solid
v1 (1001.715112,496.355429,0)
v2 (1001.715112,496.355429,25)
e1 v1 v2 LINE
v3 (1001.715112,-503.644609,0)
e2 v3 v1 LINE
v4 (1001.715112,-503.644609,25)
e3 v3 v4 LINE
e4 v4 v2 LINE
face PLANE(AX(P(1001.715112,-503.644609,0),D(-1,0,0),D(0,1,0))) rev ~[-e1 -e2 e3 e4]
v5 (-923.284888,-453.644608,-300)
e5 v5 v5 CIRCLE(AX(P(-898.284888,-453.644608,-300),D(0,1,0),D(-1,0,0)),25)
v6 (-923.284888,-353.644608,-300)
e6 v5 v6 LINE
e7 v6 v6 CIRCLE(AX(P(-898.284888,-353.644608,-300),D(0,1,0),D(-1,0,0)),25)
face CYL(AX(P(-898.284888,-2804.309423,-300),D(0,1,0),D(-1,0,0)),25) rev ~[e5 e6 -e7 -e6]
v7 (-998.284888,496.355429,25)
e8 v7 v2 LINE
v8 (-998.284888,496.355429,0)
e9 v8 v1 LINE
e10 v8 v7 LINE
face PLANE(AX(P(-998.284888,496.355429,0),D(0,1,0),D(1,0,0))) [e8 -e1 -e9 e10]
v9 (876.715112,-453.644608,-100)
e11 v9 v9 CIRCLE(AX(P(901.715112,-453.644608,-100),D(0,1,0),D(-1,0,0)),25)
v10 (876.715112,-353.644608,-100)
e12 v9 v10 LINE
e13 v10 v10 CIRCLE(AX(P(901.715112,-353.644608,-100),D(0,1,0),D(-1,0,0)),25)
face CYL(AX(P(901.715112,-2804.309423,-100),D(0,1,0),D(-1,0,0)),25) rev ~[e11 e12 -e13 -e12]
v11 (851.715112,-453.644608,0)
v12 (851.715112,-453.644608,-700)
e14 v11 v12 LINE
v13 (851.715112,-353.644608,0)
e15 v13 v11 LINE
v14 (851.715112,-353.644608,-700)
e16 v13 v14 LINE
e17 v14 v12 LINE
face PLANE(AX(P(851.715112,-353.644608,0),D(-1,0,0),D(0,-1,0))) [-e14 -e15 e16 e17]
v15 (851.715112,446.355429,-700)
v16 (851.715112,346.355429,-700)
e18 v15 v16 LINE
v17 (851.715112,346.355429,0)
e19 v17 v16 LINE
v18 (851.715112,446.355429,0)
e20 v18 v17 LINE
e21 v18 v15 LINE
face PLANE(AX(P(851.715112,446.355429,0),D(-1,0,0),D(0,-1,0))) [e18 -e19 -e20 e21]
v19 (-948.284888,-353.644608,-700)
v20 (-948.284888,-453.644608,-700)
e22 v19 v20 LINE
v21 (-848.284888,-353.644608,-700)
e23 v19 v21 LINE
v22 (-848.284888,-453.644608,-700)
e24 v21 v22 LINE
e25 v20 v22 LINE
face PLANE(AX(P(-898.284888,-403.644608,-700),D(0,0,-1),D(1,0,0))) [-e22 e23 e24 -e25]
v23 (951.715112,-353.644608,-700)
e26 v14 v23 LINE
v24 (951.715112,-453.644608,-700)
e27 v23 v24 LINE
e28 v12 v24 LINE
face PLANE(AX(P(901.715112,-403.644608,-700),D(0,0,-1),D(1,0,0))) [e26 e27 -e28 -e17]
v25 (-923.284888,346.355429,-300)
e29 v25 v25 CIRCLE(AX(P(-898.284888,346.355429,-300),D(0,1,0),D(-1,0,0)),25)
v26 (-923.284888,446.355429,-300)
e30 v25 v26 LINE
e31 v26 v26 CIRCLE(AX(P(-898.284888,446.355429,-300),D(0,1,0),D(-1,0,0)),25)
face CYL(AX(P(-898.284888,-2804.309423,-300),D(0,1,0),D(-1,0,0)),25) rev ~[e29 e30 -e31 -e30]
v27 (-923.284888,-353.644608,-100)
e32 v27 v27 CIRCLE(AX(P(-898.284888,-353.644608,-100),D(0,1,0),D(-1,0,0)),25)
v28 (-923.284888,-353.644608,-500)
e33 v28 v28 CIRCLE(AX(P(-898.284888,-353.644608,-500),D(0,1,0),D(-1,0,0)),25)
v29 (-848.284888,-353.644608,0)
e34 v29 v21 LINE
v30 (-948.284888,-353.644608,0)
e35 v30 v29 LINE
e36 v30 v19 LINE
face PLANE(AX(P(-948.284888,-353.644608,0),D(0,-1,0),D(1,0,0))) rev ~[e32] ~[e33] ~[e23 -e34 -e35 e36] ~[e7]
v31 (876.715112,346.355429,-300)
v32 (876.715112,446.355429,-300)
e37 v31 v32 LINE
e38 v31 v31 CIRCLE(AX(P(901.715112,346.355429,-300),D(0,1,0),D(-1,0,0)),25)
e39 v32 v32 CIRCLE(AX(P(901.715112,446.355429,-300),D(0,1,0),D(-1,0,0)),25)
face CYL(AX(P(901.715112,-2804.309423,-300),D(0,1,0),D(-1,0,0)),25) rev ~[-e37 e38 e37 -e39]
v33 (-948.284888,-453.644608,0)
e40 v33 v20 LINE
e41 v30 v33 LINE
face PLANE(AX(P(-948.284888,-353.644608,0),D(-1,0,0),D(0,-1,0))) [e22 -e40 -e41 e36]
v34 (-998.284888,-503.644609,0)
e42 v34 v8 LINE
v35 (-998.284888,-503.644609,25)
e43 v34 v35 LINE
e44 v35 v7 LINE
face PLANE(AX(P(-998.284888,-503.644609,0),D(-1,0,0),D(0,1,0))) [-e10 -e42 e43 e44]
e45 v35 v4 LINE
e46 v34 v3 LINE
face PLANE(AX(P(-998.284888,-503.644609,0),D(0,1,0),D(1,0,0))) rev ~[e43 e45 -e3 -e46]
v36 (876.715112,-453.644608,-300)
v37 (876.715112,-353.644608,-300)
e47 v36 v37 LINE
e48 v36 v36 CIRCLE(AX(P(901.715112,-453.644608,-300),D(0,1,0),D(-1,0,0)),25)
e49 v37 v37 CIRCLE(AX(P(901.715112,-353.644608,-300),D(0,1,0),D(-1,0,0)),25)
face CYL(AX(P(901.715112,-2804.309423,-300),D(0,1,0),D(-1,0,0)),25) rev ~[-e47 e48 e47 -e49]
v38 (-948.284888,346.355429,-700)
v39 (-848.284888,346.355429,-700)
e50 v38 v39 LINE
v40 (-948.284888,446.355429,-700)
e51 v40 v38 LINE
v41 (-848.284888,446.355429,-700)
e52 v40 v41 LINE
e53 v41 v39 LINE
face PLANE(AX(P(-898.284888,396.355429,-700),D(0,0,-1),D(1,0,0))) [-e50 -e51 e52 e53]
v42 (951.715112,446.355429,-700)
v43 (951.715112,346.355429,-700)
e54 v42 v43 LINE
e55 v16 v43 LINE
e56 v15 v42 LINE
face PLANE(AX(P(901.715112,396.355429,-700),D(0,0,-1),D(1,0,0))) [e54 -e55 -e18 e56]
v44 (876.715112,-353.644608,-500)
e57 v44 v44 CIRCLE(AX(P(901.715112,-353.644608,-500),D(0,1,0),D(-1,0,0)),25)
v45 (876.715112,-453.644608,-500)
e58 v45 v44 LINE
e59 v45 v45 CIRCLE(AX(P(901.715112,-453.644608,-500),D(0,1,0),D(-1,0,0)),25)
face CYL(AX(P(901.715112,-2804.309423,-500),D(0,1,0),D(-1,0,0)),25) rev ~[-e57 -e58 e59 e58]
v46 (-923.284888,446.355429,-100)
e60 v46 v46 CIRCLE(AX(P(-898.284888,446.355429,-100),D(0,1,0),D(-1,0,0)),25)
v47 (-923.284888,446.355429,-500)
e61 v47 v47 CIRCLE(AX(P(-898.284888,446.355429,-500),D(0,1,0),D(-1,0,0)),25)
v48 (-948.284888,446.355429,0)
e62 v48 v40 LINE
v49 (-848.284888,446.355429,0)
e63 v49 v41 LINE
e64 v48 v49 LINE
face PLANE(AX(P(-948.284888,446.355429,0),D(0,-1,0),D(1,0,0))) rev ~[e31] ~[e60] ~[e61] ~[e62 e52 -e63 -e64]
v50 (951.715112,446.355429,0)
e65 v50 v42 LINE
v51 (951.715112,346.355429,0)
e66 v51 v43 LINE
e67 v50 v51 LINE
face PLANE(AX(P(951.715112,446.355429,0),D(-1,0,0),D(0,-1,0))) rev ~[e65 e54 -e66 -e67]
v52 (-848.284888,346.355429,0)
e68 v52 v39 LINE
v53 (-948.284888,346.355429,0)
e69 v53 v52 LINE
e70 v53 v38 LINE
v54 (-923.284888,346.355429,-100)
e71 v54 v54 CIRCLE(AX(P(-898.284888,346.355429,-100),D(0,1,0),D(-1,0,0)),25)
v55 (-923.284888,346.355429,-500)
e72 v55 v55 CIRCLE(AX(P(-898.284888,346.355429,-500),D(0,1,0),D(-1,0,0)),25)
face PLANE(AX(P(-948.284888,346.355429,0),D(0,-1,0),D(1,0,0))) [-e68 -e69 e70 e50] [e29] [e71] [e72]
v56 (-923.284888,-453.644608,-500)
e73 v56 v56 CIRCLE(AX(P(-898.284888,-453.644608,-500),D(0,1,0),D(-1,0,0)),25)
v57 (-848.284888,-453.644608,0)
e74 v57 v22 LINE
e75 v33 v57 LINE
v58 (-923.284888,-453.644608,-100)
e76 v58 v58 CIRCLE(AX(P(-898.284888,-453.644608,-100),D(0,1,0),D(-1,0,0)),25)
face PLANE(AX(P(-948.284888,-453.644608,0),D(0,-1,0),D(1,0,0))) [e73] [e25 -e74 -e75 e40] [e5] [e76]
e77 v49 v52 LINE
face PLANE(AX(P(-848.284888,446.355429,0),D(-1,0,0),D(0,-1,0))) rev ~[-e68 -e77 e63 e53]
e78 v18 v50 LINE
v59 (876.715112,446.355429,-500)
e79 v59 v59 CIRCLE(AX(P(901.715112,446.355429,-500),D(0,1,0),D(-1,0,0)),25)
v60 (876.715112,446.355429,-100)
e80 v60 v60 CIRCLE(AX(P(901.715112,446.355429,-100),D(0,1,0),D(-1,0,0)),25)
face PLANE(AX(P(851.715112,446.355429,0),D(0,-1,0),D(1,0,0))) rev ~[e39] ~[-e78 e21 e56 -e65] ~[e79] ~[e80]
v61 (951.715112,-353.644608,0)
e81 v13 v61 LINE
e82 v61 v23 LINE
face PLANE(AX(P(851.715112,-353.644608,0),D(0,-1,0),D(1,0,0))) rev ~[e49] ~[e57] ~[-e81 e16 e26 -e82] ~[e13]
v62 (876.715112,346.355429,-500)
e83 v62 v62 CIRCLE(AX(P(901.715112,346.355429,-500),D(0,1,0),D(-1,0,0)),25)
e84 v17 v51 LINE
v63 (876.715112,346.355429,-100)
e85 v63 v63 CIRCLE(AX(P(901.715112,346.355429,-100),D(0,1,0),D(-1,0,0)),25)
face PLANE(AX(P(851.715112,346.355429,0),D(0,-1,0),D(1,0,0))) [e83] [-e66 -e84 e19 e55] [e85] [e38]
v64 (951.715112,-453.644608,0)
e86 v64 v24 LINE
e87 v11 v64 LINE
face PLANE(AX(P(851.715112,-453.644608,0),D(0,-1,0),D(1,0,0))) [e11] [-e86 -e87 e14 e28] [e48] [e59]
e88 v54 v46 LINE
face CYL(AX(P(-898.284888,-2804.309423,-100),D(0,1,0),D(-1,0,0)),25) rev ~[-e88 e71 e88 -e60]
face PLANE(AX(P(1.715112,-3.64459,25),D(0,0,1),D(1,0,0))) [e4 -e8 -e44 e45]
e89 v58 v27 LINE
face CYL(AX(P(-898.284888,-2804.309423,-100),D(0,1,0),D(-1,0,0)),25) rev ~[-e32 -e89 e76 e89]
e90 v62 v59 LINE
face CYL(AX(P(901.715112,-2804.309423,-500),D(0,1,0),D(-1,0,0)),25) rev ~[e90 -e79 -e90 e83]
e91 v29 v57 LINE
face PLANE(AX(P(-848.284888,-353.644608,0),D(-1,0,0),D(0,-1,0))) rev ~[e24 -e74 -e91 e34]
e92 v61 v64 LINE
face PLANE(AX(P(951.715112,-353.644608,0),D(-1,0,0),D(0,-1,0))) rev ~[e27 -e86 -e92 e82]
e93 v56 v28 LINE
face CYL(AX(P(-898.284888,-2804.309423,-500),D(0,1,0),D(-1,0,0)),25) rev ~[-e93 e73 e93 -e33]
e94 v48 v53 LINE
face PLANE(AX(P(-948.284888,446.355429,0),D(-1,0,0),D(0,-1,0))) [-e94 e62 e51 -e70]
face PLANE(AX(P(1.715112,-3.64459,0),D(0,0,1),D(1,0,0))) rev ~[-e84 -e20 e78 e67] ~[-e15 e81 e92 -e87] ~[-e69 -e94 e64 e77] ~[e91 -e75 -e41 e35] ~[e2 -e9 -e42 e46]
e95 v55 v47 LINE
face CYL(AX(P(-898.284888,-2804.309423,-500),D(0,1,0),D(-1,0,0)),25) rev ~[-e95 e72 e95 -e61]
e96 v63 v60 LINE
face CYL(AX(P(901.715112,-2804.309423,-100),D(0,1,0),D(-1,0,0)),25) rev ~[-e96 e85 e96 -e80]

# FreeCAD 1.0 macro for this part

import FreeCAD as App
import Part
import Sketcher


def add_polygon(sketch, points):
    """Adds a closed chain of lines whose ends are joined by coincident constraints."""
    first, n = sketch.GeometryCount, len(points)
    for a, b in zip(points, points[1:] + points[:1]):
        sketch.addGeometry(Part.LineSegment(App.Vector(*a, 0), App.Vector(*b, 0)), False)
    for i in range(n):
        sketch.addConstraint(Sketcher.Constraint("Coincident", first + i, 2, first + (i + 1) % n, 1))

doc = App.newDocument("Part")
params = doc.addObject("Spreadsheet::Sheet", "Params")
for row, (alias, value) in enumerate([
    ("sketch1_width", "2000 mm"),
    ("pad1_length", "25 mm"),
    ("sketch2_width", "100 mm"),
    ("pad2_length", "700 mm"),
    ("sketch3_diameter", "50 mm"),
    ("hole_diameter", "50 mm"),
    ("sketch4_diameter", "50 mm"),
    ("hole2_diameter", "50 mm"),
], start=1):
    params.set(f"A{row}", alias)
    params.set(f"B{row}", "=" + value)
    params.setAlias(f"B{row}", alias)

body = doc.addObject("PartDesign::Body", "Body")

# Sketch on XY plane
sketch1 = doc.addObject("Sketcher::SketchObject", "Sketch")
body.addObject(sketch1)
sketch1.AttachmentSupport = (doc.XY_Plane, [""])
sketch1.MapMode = "FlatFace"
add_polygon(sketch1, [(-998, 496), (-998, -504), (1002, -504), (1002, 496)])  # lines 0-3
sketch1.addConstraint(Sketcher.Constraint("Vertical", 0))
sketch1.addConstraint(Sketcher.Constraint("Horizontal", 1))
sketch1.addConstraint(Sketcher.Constraint("Vertical", 2))
sketch1.addConstraint(Sketcher.Constraint("Horizontal", 3))
sketch1.addConstraint(Sketcher.Constraint("DistanceX", 1, 1, 1, 2, 2000.0))
sketch1.addConstraint(Sketcher.Constraint("DistanceY", 0, 2, 0, 1, 1000.000037))
sketch1.addConstraint(Sketcher.Constraint("DistanceX", 0, 2, -1, 1, 998.284888))
sketch1.addConstraint(Sketcher.Constraint("DistanceY", 0, 2, -1, 1, 503.644609))
sketch1.setExpression("Constraints[8]", "Params.sketch1_width")
pad1 = doc.addObject("PartDesign::Pad", "Pad")
body.addObject(pad1)
pad1.Profile = sketch1
pad1.setExpression("Length", "Params.pad1_length")

# Sketch on XY plane
sketch2 = doc.addObject("Sketcher::SketchObject", "Sketch001")
body.addObject(sketch2)
sketch2.AttachmentSupport = (doc.XY_Plane, [""])
sketch2.MapMode = "FlatFace"
add_polygon(sketch2, [(-948, 346), (-948, 446), (-848, 446), (-848, 346)])  # lines 0-3
add_polygon(sketch2, [(-948, -454), (-948, -354), (-848, -354), (-848, -454)])  # lines 4-7
add_polygon(sketch2, [(852, -454), (852, -354), (952, -354), (952, -454)])  # lines 8-11
add_polygon(sketch2, [(852, 346), (852, 446), (952, 446), (952, 346)])  # lines 12-15
sketch2.addConstraint(Sketcher.Constraint("Vertical", 0))
sketch2.addConstraint(Sketcher.Constraint("Horizontal", 1))
sketch2.addConstraint(Sketcher.Constraint("Vertical", 2))
sketch2.addConstraint(Sketcher.Constraint("Horizontal", 3))
sketch2.addConstraint(Sketcher.Constraint("Vertical", 4))
sketch2.addConstraint(Sketcher.Constraint("Horizontal", 5))
sketch2.addConstraint(Sketcher.Constraint("Vertical", 6))
sketch2.addConstraint(Sketcher.Constraint("Horizontal", 7))
sketch2.addConstraint(Sketcher.Constraint("Vertical", 8))
sketch2.addConstraint(Sketcher.Constraint("Horizontal", 9))
sketch2.addConstraint(Sketcher.Constraint("Vertical", 10))
sketch2.addConstraint(Sketcher.Constraint("Horizontal", 11))
sketch2.addConstraint(Sketcher.Constraint("Vertical", 12))
sketch2.addConstraint(Sketcher.Constraint("Horizontal", 13))
sketch2.addConstraint(Sketcher.Constraint("Vertical", 14))
sketch2.addConstraint(Sketcher.Constraint("Horizontal", 15))
sketch2.addConstraint(Sketcher.Constraint("Horizontal", 5, 2, 8, 2))
sketch2.addConstraint(Sketcher.Constraint("Horizontal", 7, 2, 10, 2))
sketch2.addConstraint(Sketcher.Constraint("Horizontal", 1, 2, 12, 2))
sketch2.addConstraint(Sketcher.Constraint("Horizontal", 3, 2, 14, 2))
sketch2.addConstraint(Sketcher.Constraint("Vertical", 3, 2, 4, 2))
sketch2.addConstraint(Sketcher.Constraint("Vertical", 2, 2, 5, 2))
sketch2.addConstraint(Sketcher.Constraint("Vertical", 11, 2, 12, 2))
sketch2.addConstraint(Sketcher.Constraint("Vertical", 10, 2, 13, 2))
sketch2.addConstraint(Sketcher.Constraint("Equal", 7, 9))
sketch2.addConstraint(Sketcher.Constraint("Equal", 15, 0))
sketch2.addConstraint(Sketcher.Constraint("Equal", 2, 4))
sketch2.addConstraint(Sketcher.Constraint("DistanceX", 1, 1, 1, 2, 100.0))
sketch2.addConstraint(Sketcher.Constraint("DistanceX", 5, 2, 8, 2, 1700.0))
sketch2.addConstraint(Sketcher.Constraint("DistanceX", 0, 2, -1, 1, 948.284888))
sketch2.addConstraint(Sketcher.Constraint("DistanceY", -1, 1, 0, 2, 446.355429))
sketch2.addConstraint(Sketcher.Constraint("DistanceY", 4, 2, -1, 1, 353.644608))
sketch2.setExpression("Constraints[43]", "Params.sketch2_width")
pad2 = doc.addObject("PartDesign::Pad", "Pad001")
body.addObject(pad2)
pad2.Profile = sketch2
pad2.setExpression("Length", "Params.pad2_length")
pad2.Reversed = True

# Sketch on XZ plane
sketch3 = doc.addObject("Sketcher::SketchObject", "Sketch002")
body.addObject(sketch3)
sketch3.AttachmentSupport = (doc.XZ_Plane, [""])
sketch3.MapMode = "FlatFace"
sketch3.AttachmentOffset = App.Placement(App.Vector(0, 0, 453.644608), App.Rotation())
sketch3.addGeometry(Part.Circle(App.Vector(-898, -100, 0), App.Vector(0, 0, 1), 25), False)
sketch3.addGeometry(Part.Circle(App.Vector(-898, -300, 0), App.Vector(0, 0, 1), 25), False)
sketch3.addGeometry(Part.Circle(App.Vector(-898, -500, 0), App.Vector(0, 0, 1), 25), False)
sketch3.addConstraint(Sketcher.Constraint("Equal", 0, 1))
sketch3.addConstraint(Sketcher.Constraint("Equal", 1, 2))
sketch3.addConstraint(Sketcher.Constraint("Vertical", 0, 3, 1, 3))
sketch3.addConstraint(Sketcher.Constraint("Vertical", 1, 3, 2, 3))
sketch3.addConstraint(Sketcher.Constraint("Diameter", 0, 50.0))
sketch3.addConstraint(Sketcher.Constraint("DistanceY", 0, 3, -1, 1, 100.0))
sketch3.addConstraint(Sketcher.Constraint("DistanceY", 1, 3, -1, 1, 300.0))
sketch3.addConstraint(Sketcher.Constraint("DistanceY", 2, 3, -1, 1, 500.0))
sketch3.addConstraint(Sketcher.Constraint("DistanceX", 0, 3, -1, 1, 898.284888))
sketch3.setExpression("Constraints[4]", "Params.sketch3_diameter")
doc.recompute()
hole = doc.addObject("PartDesign::Hole", "Hole")
body.addObject(hole)
hole.Profile = sketch3
hole.ThreadType = "None"
hole.setExpression("Diameter", "Params.hole_diameter")
hole.DepthType = "ThroughAll"

# Sketch on XZ plane
sketch4 = doc.addObject("Sketcher::SketchObject", "Sketch003")
body.addObject(sketch4)
sketch4.AttachmentSupport = (doc.XZ_Plane, [""])
sketch4.MapMode = "FlatFace"
sketch4.AttachmentOffset = App.Placement(App.Vector(0, 0, 453.644608), App.Rotation())
sketch4.addGeometry(Part.Circle(App.Vector(902, -100, 0), App.Vector(0, 0, 1), 25), False)
sketch4.addGeometry(Part.Circle(App.Vector(902, -300, 0), App.Vector(0, 0, 1), 25), False)
sketch4.addGeometry(Part.Circle(App.Vector(902, -500, 0), App.Vector(0, 0, 1), 25), False)
sketch4.addConstraint(Sketcher.Constraint("Equal", 0, 1))
sketch4.addConstraint(Sketcher.Constraint("Equal", 1, 2))
sketch4.addConstraint(Sketcher.Constraint("Vertical", 0, 3, 1, 3))
sketch4.addConstraint(Sketcher.Constraint("Vertical", 1, 3, 2, 3))
sketch4.addConstraint(Sketcher.Constraint("Diameter", 0, 50.0))
sketch4.addConstraint(Sketcher.Constraint("DistanceY", 0, 3, -1, 1, 100.0))
sketch4.addConstraint(Sketcher.Constraint("DistanceY", 1, 3, -1, 1, 300.0))
sketch4.addConstraint(Sketcher.Constraint("DistanceY", 2, 3, -1, 1, 500.0))
sketch4.addConstraint(Sketcher.Constraint("DistanceX", -1, 1, 0, 3, 901.715112))
sketch4.setExpression("Constraints[4]", "Params.sketch4_diameter")
doc.recompute()
hole2 = doc.addObject("PartDesign::Hole", "Hole001")
body.addObject(hole2)
hole2.Profile = sketch4
hole2.ThreadType = "None"
hole2.setExpression("Diameter", "Params.hole2_diameter")
hole2.DepthType = "ThroughAll"

doc.recompute()
